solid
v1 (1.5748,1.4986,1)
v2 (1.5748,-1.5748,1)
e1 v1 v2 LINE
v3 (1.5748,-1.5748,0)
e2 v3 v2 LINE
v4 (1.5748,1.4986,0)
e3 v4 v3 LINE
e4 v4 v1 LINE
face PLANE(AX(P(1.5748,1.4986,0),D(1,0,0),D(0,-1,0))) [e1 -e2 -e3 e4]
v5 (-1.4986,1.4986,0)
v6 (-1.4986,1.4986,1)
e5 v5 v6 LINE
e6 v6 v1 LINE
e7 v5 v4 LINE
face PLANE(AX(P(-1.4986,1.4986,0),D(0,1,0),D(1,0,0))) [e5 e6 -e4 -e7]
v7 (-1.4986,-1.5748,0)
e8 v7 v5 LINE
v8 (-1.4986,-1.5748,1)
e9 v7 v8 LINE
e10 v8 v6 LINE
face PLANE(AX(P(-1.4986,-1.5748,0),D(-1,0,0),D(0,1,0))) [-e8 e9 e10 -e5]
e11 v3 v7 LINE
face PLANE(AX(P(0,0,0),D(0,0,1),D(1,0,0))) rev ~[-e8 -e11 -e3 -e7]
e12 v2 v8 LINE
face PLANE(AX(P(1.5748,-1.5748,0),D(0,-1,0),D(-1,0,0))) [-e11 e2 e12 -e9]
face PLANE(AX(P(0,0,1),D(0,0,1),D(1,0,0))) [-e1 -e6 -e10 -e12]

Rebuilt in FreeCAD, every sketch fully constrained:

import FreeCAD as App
import Part
import Sketcher

V = App.Vector


def add_polygon(sketch, points):
    """Adds a closed chain of lines whose ends are joined by coincident constraints."""
    first, n = sketch.GeometryCount, len(points)
    for a, b in zip(points, points[1:] + points[:1]):
        sketch.addGeometry(Part.LineSegment(App.Vector(*a, 0), App.Vector(*b, 0)), False)
    for i in range(n):
        sketch.addConstraint(Sketcher.Constraint("Coincident", first + i, 2, first + (i + 1) % n, 1))

doc = App.newDocument("Part")
body = doc.addObject("PartDesign::Body", "Body")

sketch1 = body.newObject("Sketcher::SketchObject", "Sketch")
sketch1.AttachmentSupport = (doc.getObject("XY_Plane"), [""])
sketch1.MapMode = "FlatFace"
add_polygon(sketch1, [(1.5748, 1.4986), (-1.4986, 1.4986), (-1.4986, -1.5748), (1.5748, -1.5748)])
sketch1.addConstraint([
    Sketcher.Constraint("Horizontal", 0),
    Sketcher.Constraint("Vertical", 1),
    Sketcher.Constraint("Horizontal", 2),
    Sketcher.Constraint("Vertical", 3),
    Sketcher.Constraint("Equal", 2, 1),
    Sketcher.Constraint("DistanceX", 0, 2, 0, 1, 3.0734),
    Sketcher.Constraint("DistanceX", 0, 2, -1, 1, 1.4986),
    Sketcher.Constraint("DistanceY", -1, 1, 0, 2, 1.4986),
])
pad1 = body.newObject("PartDesign::Pad", "Pad")
pad1.Profile = sketch1
pad1.Length = 1

doc.recompute()
